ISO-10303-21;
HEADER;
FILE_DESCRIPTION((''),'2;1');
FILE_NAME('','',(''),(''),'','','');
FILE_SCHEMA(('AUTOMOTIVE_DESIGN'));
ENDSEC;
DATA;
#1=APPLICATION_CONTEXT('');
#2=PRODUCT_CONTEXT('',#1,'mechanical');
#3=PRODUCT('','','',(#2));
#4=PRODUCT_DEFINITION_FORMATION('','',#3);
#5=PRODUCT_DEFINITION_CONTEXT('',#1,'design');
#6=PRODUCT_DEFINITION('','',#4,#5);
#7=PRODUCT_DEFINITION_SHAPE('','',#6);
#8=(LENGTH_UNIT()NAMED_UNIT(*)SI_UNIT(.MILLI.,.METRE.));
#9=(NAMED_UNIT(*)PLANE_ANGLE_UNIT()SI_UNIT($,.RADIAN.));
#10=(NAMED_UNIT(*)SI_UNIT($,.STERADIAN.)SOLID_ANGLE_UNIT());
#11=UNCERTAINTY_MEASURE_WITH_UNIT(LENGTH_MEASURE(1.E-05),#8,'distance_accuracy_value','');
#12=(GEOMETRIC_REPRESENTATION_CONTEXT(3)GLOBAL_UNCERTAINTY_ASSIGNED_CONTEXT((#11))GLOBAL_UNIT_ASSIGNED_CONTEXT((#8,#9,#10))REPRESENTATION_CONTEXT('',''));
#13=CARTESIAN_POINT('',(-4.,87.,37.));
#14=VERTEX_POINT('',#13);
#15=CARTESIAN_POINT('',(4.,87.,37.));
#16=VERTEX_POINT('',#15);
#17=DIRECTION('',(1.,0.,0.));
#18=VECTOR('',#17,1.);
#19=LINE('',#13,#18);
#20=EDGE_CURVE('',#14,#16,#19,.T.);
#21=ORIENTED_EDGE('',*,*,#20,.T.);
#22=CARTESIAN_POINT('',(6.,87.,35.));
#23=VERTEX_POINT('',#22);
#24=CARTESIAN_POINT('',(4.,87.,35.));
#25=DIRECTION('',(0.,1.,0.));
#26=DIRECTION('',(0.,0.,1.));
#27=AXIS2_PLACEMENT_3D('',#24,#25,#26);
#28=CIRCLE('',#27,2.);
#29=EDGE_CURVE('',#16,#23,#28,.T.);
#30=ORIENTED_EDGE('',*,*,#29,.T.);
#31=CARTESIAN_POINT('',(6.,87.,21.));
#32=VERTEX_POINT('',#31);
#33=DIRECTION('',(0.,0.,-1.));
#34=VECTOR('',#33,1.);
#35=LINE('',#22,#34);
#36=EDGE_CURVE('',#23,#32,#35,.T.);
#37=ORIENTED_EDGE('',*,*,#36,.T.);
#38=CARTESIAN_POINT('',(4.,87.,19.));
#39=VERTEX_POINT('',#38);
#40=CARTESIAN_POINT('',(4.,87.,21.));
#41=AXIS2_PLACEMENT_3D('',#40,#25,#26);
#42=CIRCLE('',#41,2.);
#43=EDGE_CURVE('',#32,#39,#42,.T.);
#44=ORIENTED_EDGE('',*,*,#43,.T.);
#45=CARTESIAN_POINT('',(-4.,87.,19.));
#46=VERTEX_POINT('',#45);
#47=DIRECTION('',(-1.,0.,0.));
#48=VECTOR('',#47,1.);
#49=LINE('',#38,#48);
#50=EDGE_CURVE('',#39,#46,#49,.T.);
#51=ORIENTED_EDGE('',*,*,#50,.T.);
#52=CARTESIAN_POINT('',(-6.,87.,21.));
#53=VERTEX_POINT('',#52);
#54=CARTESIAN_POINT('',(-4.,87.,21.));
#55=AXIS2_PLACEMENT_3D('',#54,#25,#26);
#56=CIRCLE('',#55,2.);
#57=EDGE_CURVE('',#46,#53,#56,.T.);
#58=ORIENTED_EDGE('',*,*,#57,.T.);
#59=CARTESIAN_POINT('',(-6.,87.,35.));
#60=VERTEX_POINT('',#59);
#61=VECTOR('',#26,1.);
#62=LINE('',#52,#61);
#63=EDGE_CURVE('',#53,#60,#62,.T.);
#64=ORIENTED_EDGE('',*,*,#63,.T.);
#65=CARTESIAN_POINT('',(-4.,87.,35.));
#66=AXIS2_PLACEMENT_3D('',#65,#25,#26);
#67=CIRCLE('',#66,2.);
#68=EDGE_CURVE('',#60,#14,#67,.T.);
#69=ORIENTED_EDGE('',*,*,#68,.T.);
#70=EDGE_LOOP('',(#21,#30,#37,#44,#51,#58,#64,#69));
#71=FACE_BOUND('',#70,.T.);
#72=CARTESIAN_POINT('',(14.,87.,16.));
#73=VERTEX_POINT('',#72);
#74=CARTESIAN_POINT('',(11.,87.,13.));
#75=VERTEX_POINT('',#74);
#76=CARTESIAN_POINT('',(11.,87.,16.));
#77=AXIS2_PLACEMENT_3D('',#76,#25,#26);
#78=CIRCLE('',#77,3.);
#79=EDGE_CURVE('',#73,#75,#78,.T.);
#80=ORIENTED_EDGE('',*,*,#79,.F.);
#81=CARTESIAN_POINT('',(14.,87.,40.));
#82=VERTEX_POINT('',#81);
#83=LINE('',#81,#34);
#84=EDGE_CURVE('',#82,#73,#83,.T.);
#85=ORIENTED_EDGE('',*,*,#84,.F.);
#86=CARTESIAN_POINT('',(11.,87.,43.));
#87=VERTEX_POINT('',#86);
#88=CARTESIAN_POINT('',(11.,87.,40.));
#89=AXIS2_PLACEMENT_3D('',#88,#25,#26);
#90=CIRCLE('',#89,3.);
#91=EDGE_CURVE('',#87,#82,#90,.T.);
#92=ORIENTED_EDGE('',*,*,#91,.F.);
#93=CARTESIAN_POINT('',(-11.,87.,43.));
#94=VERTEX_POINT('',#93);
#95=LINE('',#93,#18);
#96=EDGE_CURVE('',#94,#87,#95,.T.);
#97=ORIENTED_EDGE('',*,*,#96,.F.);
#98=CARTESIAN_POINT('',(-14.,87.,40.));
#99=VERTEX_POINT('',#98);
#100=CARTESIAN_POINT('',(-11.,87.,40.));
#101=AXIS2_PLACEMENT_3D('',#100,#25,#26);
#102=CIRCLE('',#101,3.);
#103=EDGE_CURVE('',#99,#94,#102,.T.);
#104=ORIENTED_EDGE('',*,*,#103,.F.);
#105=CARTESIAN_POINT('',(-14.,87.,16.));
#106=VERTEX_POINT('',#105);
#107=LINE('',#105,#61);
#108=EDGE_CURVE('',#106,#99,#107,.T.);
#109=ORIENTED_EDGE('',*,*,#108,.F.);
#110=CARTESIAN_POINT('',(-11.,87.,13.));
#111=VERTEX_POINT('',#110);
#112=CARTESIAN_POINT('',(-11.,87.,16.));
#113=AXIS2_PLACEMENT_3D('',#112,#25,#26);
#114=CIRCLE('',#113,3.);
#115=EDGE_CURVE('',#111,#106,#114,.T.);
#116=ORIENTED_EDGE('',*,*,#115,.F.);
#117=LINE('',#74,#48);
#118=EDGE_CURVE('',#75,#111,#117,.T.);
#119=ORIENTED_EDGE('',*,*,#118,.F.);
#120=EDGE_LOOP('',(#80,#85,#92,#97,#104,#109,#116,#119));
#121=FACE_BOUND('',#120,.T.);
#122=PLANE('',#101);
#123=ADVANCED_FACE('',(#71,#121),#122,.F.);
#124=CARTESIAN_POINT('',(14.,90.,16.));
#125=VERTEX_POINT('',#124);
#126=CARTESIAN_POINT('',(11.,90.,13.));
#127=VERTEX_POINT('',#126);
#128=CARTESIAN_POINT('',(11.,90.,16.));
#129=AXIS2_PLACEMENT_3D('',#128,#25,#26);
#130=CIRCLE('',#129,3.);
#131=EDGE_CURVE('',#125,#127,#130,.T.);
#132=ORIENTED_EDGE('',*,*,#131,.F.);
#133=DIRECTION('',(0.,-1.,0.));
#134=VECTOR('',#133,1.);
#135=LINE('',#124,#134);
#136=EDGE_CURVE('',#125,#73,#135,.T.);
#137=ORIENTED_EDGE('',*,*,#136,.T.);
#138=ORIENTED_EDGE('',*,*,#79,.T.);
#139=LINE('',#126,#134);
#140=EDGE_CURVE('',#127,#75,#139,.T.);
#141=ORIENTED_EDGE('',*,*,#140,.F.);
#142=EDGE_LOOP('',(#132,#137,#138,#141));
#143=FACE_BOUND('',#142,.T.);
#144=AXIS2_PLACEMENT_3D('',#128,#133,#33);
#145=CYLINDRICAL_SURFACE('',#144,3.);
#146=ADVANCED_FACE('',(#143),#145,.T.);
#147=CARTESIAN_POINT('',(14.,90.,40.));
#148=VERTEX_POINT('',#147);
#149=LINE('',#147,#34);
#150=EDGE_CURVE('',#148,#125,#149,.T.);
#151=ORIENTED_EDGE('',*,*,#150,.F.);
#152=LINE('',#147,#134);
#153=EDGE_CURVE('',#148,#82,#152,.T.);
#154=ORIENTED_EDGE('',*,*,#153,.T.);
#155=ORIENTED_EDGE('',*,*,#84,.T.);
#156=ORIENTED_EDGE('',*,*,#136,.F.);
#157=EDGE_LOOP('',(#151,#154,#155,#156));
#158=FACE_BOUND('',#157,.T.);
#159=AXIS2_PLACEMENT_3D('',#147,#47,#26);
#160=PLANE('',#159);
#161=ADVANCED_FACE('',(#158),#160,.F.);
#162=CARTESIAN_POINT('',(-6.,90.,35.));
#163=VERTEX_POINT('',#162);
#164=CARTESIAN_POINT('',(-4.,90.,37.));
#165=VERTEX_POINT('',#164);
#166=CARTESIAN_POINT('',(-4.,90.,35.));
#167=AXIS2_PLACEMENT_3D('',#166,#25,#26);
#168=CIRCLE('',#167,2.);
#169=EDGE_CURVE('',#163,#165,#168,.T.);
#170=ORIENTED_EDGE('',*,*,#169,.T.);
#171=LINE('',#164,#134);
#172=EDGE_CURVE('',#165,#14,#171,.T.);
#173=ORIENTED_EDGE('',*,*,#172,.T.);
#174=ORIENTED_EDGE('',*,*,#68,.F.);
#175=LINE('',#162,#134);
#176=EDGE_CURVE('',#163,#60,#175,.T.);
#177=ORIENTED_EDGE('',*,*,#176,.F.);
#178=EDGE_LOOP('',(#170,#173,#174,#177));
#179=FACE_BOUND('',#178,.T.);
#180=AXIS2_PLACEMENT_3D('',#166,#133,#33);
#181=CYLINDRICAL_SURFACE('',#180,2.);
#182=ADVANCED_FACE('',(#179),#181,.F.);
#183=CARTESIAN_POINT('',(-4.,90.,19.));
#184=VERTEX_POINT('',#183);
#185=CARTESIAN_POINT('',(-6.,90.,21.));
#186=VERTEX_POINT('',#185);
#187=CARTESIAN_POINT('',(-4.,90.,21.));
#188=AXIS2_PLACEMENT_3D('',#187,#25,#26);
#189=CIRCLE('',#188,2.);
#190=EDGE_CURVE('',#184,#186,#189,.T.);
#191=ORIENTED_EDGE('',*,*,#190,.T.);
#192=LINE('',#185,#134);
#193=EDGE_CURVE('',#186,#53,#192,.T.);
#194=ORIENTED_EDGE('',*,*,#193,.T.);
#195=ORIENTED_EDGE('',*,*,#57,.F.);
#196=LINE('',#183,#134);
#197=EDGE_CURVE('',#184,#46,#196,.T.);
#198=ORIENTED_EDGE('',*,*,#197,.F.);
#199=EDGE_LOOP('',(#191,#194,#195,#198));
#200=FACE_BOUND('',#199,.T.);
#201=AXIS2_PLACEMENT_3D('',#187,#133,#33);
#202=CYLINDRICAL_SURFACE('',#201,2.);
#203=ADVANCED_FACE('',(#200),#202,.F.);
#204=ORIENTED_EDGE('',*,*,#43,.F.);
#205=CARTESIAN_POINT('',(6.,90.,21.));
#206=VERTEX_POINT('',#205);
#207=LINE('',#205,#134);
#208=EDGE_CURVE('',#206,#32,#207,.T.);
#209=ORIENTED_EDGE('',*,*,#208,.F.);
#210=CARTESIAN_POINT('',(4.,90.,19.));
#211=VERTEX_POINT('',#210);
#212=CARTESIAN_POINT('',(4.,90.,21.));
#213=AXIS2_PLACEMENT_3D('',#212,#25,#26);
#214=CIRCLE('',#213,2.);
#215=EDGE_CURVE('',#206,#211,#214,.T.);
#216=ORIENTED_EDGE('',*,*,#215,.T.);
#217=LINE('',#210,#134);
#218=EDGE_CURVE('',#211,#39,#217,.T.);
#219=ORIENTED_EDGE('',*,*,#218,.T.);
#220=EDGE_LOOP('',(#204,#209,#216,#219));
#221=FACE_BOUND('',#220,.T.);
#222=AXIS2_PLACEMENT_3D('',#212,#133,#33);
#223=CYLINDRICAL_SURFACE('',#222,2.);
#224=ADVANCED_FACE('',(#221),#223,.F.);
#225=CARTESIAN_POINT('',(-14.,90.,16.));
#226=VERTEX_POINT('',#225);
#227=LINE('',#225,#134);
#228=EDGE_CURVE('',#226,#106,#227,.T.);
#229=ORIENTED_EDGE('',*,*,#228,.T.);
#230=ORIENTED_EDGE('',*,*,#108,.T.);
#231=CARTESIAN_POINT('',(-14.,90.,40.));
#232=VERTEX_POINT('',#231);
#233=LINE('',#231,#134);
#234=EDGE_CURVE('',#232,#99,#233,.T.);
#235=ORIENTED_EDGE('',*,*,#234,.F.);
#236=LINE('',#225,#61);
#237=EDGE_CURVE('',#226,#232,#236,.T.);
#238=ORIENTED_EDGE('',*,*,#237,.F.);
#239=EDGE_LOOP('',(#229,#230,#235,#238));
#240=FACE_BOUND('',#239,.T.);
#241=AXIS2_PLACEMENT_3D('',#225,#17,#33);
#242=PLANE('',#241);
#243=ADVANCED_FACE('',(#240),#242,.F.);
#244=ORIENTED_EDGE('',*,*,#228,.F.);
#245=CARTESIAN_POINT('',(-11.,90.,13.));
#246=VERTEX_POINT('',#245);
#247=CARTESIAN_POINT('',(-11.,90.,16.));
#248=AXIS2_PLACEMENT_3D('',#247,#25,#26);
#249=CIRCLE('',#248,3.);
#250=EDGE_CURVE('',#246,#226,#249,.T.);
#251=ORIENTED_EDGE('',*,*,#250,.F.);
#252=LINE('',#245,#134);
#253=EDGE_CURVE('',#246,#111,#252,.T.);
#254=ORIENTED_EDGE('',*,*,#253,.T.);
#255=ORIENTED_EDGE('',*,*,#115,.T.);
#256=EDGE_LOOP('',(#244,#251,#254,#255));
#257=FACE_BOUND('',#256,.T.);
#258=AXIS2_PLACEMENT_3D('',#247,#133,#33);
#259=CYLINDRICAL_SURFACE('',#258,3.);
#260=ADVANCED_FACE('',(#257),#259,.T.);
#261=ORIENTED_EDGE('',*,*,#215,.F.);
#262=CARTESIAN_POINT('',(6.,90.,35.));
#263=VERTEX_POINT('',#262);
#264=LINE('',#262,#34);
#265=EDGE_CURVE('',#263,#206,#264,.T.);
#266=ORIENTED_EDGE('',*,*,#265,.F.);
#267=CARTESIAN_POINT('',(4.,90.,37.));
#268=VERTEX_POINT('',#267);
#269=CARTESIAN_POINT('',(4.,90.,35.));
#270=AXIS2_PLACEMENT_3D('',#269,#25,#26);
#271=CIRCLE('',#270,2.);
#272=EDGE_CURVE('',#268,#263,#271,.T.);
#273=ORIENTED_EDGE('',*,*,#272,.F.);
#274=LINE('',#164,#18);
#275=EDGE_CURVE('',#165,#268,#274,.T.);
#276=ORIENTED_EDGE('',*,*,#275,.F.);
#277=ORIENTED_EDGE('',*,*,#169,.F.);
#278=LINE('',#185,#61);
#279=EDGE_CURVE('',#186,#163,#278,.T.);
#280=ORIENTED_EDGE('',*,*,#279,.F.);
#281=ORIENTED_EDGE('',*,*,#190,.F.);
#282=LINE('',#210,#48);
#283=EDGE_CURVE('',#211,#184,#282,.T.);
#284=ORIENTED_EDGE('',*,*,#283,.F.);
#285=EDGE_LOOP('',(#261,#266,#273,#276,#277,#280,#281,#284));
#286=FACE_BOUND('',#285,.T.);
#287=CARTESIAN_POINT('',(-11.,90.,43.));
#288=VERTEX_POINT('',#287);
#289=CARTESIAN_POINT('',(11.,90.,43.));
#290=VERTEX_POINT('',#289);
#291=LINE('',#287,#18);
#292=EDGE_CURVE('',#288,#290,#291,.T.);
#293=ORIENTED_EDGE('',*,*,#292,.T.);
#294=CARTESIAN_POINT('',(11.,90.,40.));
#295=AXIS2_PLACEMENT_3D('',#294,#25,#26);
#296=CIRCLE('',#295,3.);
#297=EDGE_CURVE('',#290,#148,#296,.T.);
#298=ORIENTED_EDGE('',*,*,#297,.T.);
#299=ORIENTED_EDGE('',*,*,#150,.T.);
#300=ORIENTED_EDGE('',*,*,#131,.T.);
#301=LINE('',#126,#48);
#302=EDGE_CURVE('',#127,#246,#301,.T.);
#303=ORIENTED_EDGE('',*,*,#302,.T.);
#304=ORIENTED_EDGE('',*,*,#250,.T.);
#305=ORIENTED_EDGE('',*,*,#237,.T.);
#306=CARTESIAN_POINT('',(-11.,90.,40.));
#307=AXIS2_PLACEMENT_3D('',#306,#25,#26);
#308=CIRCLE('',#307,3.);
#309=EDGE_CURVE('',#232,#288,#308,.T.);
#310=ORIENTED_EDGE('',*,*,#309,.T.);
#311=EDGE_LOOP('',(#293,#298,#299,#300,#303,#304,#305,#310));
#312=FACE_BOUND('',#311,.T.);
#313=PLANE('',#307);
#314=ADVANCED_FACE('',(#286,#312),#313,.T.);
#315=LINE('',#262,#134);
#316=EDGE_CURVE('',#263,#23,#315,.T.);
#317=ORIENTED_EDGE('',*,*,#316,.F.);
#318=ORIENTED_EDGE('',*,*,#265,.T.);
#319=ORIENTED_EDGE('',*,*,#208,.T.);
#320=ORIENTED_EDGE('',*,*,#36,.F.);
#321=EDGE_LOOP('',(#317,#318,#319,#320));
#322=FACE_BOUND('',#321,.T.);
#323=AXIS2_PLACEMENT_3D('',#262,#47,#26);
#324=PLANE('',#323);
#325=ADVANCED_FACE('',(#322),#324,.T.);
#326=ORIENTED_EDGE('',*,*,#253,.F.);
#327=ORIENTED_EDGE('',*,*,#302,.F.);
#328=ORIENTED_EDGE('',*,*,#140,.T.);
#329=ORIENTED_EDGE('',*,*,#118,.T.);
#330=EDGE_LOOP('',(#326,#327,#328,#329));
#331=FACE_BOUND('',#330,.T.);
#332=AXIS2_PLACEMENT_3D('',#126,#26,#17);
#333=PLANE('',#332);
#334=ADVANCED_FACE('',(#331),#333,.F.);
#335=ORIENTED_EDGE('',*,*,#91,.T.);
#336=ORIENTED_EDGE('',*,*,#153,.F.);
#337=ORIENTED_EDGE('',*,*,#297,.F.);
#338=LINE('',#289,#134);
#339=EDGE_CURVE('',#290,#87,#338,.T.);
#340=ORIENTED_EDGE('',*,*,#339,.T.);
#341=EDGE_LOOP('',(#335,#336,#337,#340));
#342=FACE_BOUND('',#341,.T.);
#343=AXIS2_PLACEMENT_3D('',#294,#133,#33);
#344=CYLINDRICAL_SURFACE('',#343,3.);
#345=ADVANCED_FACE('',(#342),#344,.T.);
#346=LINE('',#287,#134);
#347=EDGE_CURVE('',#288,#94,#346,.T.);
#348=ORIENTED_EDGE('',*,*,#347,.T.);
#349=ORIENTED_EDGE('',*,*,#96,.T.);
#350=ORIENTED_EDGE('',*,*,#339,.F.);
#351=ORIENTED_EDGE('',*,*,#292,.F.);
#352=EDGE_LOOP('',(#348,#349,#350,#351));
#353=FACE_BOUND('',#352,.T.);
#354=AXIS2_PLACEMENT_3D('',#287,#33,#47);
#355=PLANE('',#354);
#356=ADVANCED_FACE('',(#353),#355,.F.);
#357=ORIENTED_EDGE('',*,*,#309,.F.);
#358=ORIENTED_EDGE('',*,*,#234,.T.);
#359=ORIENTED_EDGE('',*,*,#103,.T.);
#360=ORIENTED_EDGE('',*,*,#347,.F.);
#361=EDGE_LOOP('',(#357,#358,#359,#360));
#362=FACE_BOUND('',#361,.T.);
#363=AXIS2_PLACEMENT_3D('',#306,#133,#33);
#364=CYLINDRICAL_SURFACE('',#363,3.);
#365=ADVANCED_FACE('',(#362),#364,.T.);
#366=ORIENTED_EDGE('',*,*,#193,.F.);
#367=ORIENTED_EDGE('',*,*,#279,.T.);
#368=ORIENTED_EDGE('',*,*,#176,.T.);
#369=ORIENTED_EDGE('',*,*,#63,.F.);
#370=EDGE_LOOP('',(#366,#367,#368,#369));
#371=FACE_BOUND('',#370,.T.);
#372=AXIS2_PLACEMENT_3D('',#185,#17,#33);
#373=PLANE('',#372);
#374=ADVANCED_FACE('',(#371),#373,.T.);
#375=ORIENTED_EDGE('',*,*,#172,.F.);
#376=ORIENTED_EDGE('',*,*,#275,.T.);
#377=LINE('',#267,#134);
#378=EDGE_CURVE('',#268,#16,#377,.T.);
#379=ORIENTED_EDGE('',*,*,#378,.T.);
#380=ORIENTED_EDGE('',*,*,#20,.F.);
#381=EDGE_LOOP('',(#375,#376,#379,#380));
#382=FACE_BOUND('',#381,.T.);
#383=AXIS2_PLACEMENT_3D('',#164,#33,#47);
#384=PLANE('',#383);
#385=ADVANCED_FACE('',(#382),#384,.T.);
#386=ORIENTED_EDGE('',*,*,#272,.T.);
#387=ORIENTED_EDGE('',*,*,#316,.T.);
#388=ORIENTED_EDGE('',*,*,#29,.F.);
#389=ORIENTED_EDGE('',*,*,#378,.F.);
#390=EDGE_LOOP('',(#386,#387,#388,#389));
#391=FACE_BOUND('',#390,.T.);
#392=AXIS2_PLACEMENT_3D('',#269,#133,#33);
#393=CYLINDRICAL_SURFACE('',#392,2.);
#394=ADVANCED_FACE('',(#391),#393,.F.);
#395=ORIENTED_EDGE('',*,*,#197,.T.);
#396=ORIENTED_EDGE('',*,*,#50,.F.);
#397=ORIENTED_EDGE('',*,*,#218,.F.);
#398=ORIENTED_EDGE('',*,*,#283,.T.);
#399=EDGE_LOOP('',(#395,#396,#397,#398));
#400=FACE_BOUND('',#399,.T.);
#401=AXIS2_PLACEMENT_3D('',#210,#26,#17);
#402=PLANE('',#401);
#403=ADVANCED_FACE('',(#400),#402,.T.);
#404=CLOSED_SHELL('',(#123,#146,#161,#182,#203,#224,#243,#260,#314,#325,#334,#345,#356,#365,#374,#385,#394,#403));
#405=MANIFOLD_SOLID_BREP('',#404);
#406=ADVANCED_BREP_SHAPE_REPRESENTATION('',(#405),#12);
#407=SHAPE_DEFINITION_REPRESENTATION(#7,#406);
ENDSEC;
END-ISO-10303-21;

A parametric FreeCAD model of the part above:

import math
import FreeCAD as App
import Part
import Sketcher

V = App.Vector
Q = App.Units.Quantity

doc = App.newDocument("Part")
body = doc.addObject("PartDesign::Body", "Body")

# Sketch on XZ plane
sketch1 = body.newObject("Sketcher::SketchObject", "Sketch")
sketch1.AttachmentSupport = (doc.getObject("XZ_Plane"), [""])
sketch1.MapMode = "FlatFace"
sketch1.AttachmentOffset = App.Placement(V(0, 0, -87), App.Rotation())
sketch1.addGeometry(Part.LineSegment(V(-11, 43, 0), V(11, 43, 0)), False)
sketch1.addGeometry(Part.ArcOfCircle(Part.Circle(V(11, 40, 0), V(0, 0, 1), 3), math.radians(0), math.radians(90)), False)
sketch1.addGeometry(Part.LineSegment(V(14, 40, 0), V(14, 16, 0)), False)
sketch1.addGeometry(Part.ArcOfCircle(Part.Circle(V(11, 16, 0), V(0, 0, 1), 3), math.radians(-90), math.radians(0)), False)
sketch1.addGeometry(Part.LineSegment(V(11, 13, 0), V(-11, 13, 0)), False)
sketch1.addGeometry(Part.ArcOfCircle(Part.Circle(V(-11, 16, 0), V(0, 0, 1), 3), math.radians(180), math.radians(270)), False)
sketch1.addGeometry(Part.LineSegment(V(-14, 16, 0), V(-14, 40, 0)), False)
sketch1.addGeometry(Part.ArcOfCircle(Part.Circle(V(-11, 40, 0), V(0, 0, 1), 3), math.radians(90), math.radians(180)), False)
sketch1.addGeometry(Part.LineSegment(V(4, 37, 0), V(-4, 37, 0)), False)
sketch1.addGeometry(Part.ArcOfCircle(Part.Circle(V(-4, 35, 0), V(0, 0, 1), 2), math.radians(90), math.radians(180)), False)
sketch1.addGeometry(Part.LineSegment(V(-6, 35, 0), V(-6, 21, 0)), False)
sketch1.addGeometry(Part.ArcOfCircle(Part.Circle(V(-4, 21, 0), V(0, 0, 1), 2), math.radians(-180), math.radians(-90)), False)
sketch1.addGeometry(Part.LineSegment(V(-4, 19, 0), V(4, 19, 0)), False)
sketch1.addGeometry(Part.ArcOfCircle(Part.Circle(V(4, 21, 0), V(0, 0, 1), 2), math.radians(-90), math.radians(0)), False)
sketch1.addGeometry(Part.LineSegment(V(6, 21, 0), V(6, 35, 0)), False)
sketch1.addGeometry(Part.ArcOfCircle(Part.Circle(V(4, 35, 0), V(0, 0, 1), 2), math.radians(0), math.radians(90)), False)
sketch1.addConstraint(Sketcher.Constraint("Tangent", 0, 2, 1, 2))
sketch1.addConstraint(Sketcher.Constraint("Tangent", 1, 1, 2, 1))
sketch1.addConstraint(Sketcher.Constraint("Tangent", 2, 2, 3, 2))
sketch1.addConstraint(Sketcher.Constraint("Tangent", 3, 1, 4, 1))
sketch1.addConstraint(Sketcher.Constraint("Tangent", 4, 2, 5, 2))
sketch1.addConstraint(Sketcher.Constraint("Tangent", 5, 1, 6, 1))
sketch1.addConstraint(Sketcher.Constraint("Tangent", 6, 2, 7, 2))
sketch1.addConstraint(Sketcher.Constraint("Tangent", 7, 1, 0, 1))
sketch1.addConstraint(Sketcher.Constraint("Tangent", 8, 2, 9, 1))
sketch1.addConstraint(Sketcher.Constraint("Tangent", 9, 2, 10, 1))
sketch1.addConstraint(Sketcher.Constraint("Tangent", 10, 2, 11, 1))
sketch1.addConstraint(Sketcher.Constraint("Tangent", 11, 2, 12, 1))
sketch1.addConstraint(Sketcher.Constraint("Tangent", 12, 2, 13, 1))
sketch1.addConstraint(Sketcher.Constraint("Tangent", 13, 2, 14, 1))
sketch1.addConstraint(Sketcher.Constraint("Tangent", 14, 2, 15, 1))
sketch1.addConstraint(Sketcher.Constraint("Tangent", 15, 2, 8, 1))
sketch1.addConstraint(Sketcher.Constraint("Horizontal", 0))
sketch1.addConstraint(Sketcher.Constraint("Vertical", 2))
sketch1.addConstraint(Sketcher.Constraint("Horizontal", 4))
sketch1.addConstraint(Sketcher.Constraint("Vertical", 6))
sketch1.addConstraint(Sketcher.Constraint("Horizontal", 8))
sketch1.addConstraint(Sketcher.Constraint("Vertical", 10))
sketch1.addConstraint(Sketcher.Constraint("Horizontal", 12))
sketch1.addConstraint(Sketcher.Constraint("Vertical", 14))
sketch1.addConstraint(Sketcher.Constraint("Equal", 1, 3))
sketch1.addConstraint(Sketcher.Constraint("Equal", 3, 5))
sketch1.addConstraint(Sketcher.Constraint("Equal", 5, 7))
sketch1.addConstraint(Sketcher.Constraint("Equal", 9, 11))
sketch1.addConstraint(Sketcher.Constraint("Equal", 11, 13))
sketch1.addConstraint(Sketcher.Constraint("Equal", 13, 15))
sketch1.addConstraint(Sketcher.Constraint("Radius", 1, Q("3 mm")))
sketch1.addConstraint(Sketcher.Constraint("Radius", 9, Q("2 mm")))
sketch1.addConstraint(Sketcher.Constraint("DistanceX", 0, 1, 0, 2, Q("22 mm")))
sketch1.addConstraint(Sketcher.Constraint("DistanceX", 8, 2, 8, 1, Q("8 mm")))
sketch1.addConstraint(Sketcher.Constraint("DistanceY", 2, 2, 2, 1, Q("24 mm")))
sketch1.addConstraint(Sketcher.Constraint("DistanceY", 10, 2, 10, 1, Q("14 mm")))
sketch1.addConstraint(Sketcher.Constraint("DistanceX", -1, 1, 1, 3, Q("11 mm")))
sketch1.addConstraint(Sketcher.Constraint("DistanceY", -1, 1, 1, 3, Q("40 mm")))
sketch1.addConstraint(Sketcher.Constraint("DistanceX", 9, 3, -1, 1, Q("4 mm")))
sketch1.addConstraint(Sketcher.Constraint("DistanceY", -1, 1, 9, 3, Q("35 mm")))
pad1 = body.newObject("PartDesign::Pad", "Pad")
pad1.Profile = sketch1
pad1.Length = 3
pad1.Reversed = True

doc.recompute()
